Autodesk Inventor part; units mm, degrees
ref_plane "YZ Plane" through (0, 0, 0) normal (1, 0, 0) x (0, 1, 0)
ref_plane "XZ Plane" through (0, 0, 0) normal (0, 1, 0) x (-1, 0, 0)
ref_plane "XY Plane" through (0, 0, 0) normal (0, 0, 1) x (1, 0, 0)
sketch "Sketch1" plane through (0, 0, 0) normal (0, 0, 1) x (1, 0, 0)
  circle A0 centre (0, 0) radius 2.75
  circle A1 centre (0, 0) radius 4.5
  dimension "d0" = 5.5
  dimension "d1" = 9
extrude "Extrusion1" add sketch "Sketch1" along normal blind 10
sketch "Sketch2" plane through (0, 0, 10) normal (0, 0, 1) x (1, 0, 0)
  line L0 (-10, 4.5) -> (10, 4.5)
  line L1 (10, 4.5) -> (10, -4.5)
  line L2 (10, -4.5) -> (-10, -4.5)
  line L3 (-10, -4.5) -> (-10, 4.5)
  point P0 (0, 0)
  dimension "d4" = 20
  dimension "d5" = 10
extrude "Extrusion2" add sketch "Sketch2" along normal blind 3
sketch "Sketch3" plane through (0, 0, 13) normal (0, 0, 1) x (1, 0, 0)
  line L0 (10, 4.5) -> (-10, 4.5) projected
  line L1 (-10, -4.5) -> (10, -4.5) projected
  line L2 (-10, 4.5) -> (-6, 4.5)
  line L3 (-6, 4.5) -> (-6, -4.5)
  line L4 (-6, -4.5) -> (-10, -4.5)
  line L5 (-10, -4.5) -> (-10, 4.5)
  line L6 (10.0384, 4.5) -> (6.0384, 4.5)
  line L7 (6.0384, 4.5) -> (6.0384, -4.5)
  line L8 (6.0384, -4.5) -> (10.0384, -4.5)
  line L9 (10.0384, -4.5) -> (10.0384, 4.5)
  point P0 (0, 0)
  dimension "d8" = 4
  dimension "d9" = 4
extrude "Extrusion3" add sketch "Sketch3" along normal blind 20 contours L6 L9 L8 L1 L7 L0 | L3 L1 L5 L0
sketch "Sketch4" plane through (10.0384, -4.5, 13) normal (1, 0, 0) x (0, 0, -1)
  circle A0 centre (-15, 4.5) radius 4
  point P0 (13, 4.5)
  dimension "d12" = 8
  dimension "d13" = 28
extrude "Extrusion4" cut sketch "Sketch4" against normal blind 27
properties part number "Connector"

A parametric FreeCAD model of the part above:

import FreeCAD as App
import Part
import Sketcher

V = App.Vector


def add_polygon(sketch, points):
    """Adds a closed chain of lines whose ends are joined by coincident constraints."""
    first, n = sketch.GeometryCount, len(points)
    for a, b in zip(points, points[1:] + points[:1]):
        sketch.addGeometry(Part.LineSegment(App.Vector(*a, 0), App.Vector(*b, 0)), False)
    for i in range(n):
        sketch.addConstraint(Sketcher.Constraint("Coincident", first + i, 2, first + (i + 1) % n, 1))

doc = App.newDocument("Part")
body = doc.addObject("PartDesign::Body", "Body")

# Sketch on XY plane
sketch1 = body.newObject("Sketcher::SketchObject", "Sketch")
sketch1.AttachmentSupport = (doc.getObject("XY_Plane"), [""])
sketch1.MapMode = "FlatFace"
sketch1.addGeometry([
    Part.Circle(V(0, 0, 0), V(0, 0, 1), 4.5),
    Part.Circle(V(0, 0, 0), V(0, 0, 1), 2.8),
], False)
sketch1.addConstraint([
    Sketcher.Constraint("Coincident", 0, 3, -1, 1),
    Sketcher.Constraint("Coincident", 1, 3, -1, 1),
    Sketcher.Constraint("Diameter", 0, 9.0),
    Sketcher.Constraint("Diameter", 1, 5.5),
])
pad1 = body.newObject("PartDesign::Pad", "Pad")
pad1.Profile = sketch1
pad1.Length = 10

# Sketch on XY plane
sketch2 = body.newObject("Sketcher::SketchObject", "Sketch001")
sketch2.AttachmentSupport = (doc.getObject("XY_Plane"), [""])
sketch2.MapMode = "FlatFace"
sketch2.AttachmentOffset = App.Placement(V(0, 0, 10), App.Rotation())
add_polygon(sketch2, [(10, 4), (-10, 4), (-10, -4), (10, -4)])  # lines 0-3
sketch2.addConstraint([
    Sketcher.Constraint("Horizontal", 0),
    Sketcher.Constraint("Vertical", 1),
    Sketcher.Constraint("Horizontal", 2),
    Sketcher.Constraint("Vertical", 3),
    Sketcher.Constraint("Symmetric", 0, 2, 2, 2, -1, 1),
    Sketcher.Constraint("DistanceX", 0, 2, 0, 1, 20.0),
    Sketcher.Constraint("DistanceY", 1, 2, 1, 1, 9.0),
])
pad2 = body.newObject("PartDesign::Pad", "Pad001")
pad2.Profile = sketch2
pad2.Length = 3

# Sketch on XY plane
sketch3 = body.newObject("Sketcher::SketchObject", "Sketch002")
sketch3.AttachmentSupport = (doc.getObject("XY_Plane"), [""])
sketch3.MapMode = "FlatFace"
sketch3.AttachmentOffset = App.Placement(V(0, 0, 13), App.Rotation())
add_polygon(sketch3, [(10, 4.5), (6, 4.5), (6, -4.5), (10, -4.5)])  # lines 0-3
add_polygon(sketch3, [(-6, -4.5), (-6, 4.5), (-10, 4.5), (-10, -4.5)])  # lines 4-7
sketch3.addConstraint([
    Sketcher.Constraint("Horizontal", 0),
    Sketcher.Constraint("Vertical", 1),
    Sketcher.Constraint("Horizontal", 2),
    Sketcher.Constraint("Vertical", 3),
    Sketcher.Constraint("Vertical", 4),
    Sketcher.Constraint("Horizontal", 5),
    Sketcher.Constraint("Vertical", 6),
    Sketcher.Constraint("Horizontal", 7),
    Sketcher.Constraint("Horizontal", 3, 2, 4, 2),
    Sketcher.Constraint("Horizontal", 2, 2, 6, 2),
    Sketcher.Constraint("Equal", 2, 5),
    Sketcher.Constraint("DistanceX", 0, 2, 0, 1, 4.0),
    Sketcher.Constraint("DistanceY", 1, 2, 1, 1, 9.0),
    Sketcher.Constraint("DistanceX", 4, 2, -1, 1, 6.0),
    Sketcher.Constraint("DistanceY", -1, 1, 0, 2, 4.5),
    Sketcher.Constraint("DistanceX", -1, 1, 0, 2, 6.0384),
])
pad3 = body.newObject("PartDesign::Pad", "Pad002")
pad3.Profile = sketch3
pad3.Length = 20

# Sketch on YZ plane
sketch4 = body.newObject("Sketcher::SketchObject", "Sketch003")
sketch4.AttachmentSupport = (doc.getObject("YZ_Plane"), [""])
sketch4.MapMode = "FlatFace"
sketch4.AttachmentOffset = App.Placement(V(0, 0, 10.0384), App.Rotation())
sketch4.addGeometry(Part.Circle(V(0, 28, 0), V(0, 0, 1), 4), False)
sketch4.addConstraint([
    Sketcher.Constraint("PointOnObject", 0, 3, -2),
    Sketcher.Constraint("Diameter", 0, 8.0),
    Sketcher.Constraint("DistanceY", -1, 1, 0, 3, 28.0),
])
pocket1 = body.newObject("PartDesign::Pocket", "Pocket")
pocket1.Profile = sketch4
pocket1.Length = 27

doc.recompute()
